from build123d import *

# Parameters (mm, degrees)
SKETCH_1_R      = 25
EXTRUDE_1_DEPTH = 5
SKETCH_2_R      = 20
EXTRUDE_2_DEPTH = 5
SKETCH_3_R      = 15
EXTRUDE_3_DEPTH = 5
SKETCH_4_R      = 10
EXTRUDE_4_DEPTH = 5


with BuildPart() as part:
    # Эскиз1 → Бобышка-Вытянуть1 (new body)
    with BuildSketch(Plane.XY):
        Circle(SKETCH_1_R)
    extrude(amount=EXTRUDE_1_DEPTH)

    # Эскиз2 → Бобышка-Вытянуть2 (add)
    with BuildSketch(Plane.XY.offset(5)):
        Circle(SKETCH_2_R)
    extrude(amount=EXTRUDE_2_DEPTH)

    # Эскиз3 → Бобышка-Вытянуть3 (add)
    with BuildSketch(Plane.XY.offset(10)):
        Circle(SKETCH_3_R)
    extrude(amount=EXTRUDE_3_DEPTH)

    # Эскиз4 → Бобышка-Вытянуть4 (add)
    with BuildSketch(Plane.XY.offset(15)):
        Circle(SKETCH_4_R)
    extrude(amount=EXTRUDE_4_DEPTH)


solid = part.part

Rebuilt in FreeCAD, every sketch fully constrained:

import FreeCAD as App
import Part
import Sketcher
from FreeCAD import Vector
Q = App.Units.Quantity

doc = App.newDocument("Part")
body = doc.addObject("PartDesign::Body", "Body")

sketch1 = doc.addObject("Sketcher::SketchObject", "Sketch")
body.addObject(sketch1)
sketch1.AttachmentSupport = (doc.XY_Plane, [""])
sketch1.MapMode = "FlatFace"
sketch1.addGeometry(Part.Circle(Vector(0, 0, 0), Vector(0, 0, 1), 25), False)
sketch1.addConstraint(Sketcher.Constraint("Coincident", 0, 3, -1, 1))
sketch1.addConstraint(Sketcher.Constraint("Diameter", 0, Q("50 mm")))
pad1 = doc.addObject("PartDesign::Pad", "Pad")
body.addObject(pad1)
pad1.Profile = sketch1
pad1.Length = 5

sketch2 = doc.addObject("Sketcher::SketchObject", "Sketch001")
body.addObject(sketch2)
sketch2.AttachmentSupport = (doc.XY_Plane, [""])
sketch2.MapMode = "FlatFace"
sketch2.AttachmentOffset = App.Placement(Vector(0, 0, 5), App.Rotation())
sketch2.addGeometry(Part.Circle(Vector(0, 0, 0), Vector(0, 0, 1), 20), False)
sketch2.addConstraint(Sketcher.Constraint("Coincident", 0, 3, -1, 1))
sketch2.addConstraint(Sketcher.Constraint("Diameter", 0, Q("40 mm")))
pad2 = doc.addObject("PartDesign::Pad", "Pad001")
body.addObject(pad2)
pad2.Profile = sketch2
pad2.Length = 5

sketch3 = doc.addObject("Sketcher::SketchObject", "Sketch002")
body.addObject(sketch3)
sketch3.AttachmentSupport = (doc.XY_Plane, [""])
sketch3.MapMode = "FlatFace"
sketch3.AttachmentOffset = App.Placement(Vector(0, 0, 10), App.Rotation())
sketch3.addGeometry(Part.Circle(Vector(0, 0, 0), Vector(0, 0, 1), 15), False)
sketch3.addConstraint(Sketcher.Constraint("Coincident", 0, 3, -1, 1))
sketch3.addConstraint(Sketcher.Constraint("Diameter", 0, Q("30 mm")))
pad3 = doc.addObject("PartDesign::Pad", "Pad002")
body.addObject(pad3)
pad3.Profile = sketch3
pad3.Length = 5

sketch4 = doc.addObject("Sketcher::SketchObject", "Sketch003")
body.addObject(sketch4)
sketch4.AttachmentSupport = (doc.XY_Plane, [""])
sketch4.MapMode = "FlatFace"
sketch4.AttachmentOffset = App.Placement(Vector(0, 0, 15), App.Rotation())
sketch4.addGeometry(Part.Circle(Vector(0, 0, 0), Vector(0, 0, 1), 10), False)
sketch4.addConstraint(Sketcher.Constraint("Coincident", 0, 3, -1, 1))
sketch4.addConstraint(Sketcher.Constraint("Diameter", 0, Q("20 mm")))
pad4 = doc.addObject("PartDesign::Pad", "Pad003")
body.addObject(pad4)
pad4.Profile = sketch4
pad4.Length = 5

doc.recompute()
